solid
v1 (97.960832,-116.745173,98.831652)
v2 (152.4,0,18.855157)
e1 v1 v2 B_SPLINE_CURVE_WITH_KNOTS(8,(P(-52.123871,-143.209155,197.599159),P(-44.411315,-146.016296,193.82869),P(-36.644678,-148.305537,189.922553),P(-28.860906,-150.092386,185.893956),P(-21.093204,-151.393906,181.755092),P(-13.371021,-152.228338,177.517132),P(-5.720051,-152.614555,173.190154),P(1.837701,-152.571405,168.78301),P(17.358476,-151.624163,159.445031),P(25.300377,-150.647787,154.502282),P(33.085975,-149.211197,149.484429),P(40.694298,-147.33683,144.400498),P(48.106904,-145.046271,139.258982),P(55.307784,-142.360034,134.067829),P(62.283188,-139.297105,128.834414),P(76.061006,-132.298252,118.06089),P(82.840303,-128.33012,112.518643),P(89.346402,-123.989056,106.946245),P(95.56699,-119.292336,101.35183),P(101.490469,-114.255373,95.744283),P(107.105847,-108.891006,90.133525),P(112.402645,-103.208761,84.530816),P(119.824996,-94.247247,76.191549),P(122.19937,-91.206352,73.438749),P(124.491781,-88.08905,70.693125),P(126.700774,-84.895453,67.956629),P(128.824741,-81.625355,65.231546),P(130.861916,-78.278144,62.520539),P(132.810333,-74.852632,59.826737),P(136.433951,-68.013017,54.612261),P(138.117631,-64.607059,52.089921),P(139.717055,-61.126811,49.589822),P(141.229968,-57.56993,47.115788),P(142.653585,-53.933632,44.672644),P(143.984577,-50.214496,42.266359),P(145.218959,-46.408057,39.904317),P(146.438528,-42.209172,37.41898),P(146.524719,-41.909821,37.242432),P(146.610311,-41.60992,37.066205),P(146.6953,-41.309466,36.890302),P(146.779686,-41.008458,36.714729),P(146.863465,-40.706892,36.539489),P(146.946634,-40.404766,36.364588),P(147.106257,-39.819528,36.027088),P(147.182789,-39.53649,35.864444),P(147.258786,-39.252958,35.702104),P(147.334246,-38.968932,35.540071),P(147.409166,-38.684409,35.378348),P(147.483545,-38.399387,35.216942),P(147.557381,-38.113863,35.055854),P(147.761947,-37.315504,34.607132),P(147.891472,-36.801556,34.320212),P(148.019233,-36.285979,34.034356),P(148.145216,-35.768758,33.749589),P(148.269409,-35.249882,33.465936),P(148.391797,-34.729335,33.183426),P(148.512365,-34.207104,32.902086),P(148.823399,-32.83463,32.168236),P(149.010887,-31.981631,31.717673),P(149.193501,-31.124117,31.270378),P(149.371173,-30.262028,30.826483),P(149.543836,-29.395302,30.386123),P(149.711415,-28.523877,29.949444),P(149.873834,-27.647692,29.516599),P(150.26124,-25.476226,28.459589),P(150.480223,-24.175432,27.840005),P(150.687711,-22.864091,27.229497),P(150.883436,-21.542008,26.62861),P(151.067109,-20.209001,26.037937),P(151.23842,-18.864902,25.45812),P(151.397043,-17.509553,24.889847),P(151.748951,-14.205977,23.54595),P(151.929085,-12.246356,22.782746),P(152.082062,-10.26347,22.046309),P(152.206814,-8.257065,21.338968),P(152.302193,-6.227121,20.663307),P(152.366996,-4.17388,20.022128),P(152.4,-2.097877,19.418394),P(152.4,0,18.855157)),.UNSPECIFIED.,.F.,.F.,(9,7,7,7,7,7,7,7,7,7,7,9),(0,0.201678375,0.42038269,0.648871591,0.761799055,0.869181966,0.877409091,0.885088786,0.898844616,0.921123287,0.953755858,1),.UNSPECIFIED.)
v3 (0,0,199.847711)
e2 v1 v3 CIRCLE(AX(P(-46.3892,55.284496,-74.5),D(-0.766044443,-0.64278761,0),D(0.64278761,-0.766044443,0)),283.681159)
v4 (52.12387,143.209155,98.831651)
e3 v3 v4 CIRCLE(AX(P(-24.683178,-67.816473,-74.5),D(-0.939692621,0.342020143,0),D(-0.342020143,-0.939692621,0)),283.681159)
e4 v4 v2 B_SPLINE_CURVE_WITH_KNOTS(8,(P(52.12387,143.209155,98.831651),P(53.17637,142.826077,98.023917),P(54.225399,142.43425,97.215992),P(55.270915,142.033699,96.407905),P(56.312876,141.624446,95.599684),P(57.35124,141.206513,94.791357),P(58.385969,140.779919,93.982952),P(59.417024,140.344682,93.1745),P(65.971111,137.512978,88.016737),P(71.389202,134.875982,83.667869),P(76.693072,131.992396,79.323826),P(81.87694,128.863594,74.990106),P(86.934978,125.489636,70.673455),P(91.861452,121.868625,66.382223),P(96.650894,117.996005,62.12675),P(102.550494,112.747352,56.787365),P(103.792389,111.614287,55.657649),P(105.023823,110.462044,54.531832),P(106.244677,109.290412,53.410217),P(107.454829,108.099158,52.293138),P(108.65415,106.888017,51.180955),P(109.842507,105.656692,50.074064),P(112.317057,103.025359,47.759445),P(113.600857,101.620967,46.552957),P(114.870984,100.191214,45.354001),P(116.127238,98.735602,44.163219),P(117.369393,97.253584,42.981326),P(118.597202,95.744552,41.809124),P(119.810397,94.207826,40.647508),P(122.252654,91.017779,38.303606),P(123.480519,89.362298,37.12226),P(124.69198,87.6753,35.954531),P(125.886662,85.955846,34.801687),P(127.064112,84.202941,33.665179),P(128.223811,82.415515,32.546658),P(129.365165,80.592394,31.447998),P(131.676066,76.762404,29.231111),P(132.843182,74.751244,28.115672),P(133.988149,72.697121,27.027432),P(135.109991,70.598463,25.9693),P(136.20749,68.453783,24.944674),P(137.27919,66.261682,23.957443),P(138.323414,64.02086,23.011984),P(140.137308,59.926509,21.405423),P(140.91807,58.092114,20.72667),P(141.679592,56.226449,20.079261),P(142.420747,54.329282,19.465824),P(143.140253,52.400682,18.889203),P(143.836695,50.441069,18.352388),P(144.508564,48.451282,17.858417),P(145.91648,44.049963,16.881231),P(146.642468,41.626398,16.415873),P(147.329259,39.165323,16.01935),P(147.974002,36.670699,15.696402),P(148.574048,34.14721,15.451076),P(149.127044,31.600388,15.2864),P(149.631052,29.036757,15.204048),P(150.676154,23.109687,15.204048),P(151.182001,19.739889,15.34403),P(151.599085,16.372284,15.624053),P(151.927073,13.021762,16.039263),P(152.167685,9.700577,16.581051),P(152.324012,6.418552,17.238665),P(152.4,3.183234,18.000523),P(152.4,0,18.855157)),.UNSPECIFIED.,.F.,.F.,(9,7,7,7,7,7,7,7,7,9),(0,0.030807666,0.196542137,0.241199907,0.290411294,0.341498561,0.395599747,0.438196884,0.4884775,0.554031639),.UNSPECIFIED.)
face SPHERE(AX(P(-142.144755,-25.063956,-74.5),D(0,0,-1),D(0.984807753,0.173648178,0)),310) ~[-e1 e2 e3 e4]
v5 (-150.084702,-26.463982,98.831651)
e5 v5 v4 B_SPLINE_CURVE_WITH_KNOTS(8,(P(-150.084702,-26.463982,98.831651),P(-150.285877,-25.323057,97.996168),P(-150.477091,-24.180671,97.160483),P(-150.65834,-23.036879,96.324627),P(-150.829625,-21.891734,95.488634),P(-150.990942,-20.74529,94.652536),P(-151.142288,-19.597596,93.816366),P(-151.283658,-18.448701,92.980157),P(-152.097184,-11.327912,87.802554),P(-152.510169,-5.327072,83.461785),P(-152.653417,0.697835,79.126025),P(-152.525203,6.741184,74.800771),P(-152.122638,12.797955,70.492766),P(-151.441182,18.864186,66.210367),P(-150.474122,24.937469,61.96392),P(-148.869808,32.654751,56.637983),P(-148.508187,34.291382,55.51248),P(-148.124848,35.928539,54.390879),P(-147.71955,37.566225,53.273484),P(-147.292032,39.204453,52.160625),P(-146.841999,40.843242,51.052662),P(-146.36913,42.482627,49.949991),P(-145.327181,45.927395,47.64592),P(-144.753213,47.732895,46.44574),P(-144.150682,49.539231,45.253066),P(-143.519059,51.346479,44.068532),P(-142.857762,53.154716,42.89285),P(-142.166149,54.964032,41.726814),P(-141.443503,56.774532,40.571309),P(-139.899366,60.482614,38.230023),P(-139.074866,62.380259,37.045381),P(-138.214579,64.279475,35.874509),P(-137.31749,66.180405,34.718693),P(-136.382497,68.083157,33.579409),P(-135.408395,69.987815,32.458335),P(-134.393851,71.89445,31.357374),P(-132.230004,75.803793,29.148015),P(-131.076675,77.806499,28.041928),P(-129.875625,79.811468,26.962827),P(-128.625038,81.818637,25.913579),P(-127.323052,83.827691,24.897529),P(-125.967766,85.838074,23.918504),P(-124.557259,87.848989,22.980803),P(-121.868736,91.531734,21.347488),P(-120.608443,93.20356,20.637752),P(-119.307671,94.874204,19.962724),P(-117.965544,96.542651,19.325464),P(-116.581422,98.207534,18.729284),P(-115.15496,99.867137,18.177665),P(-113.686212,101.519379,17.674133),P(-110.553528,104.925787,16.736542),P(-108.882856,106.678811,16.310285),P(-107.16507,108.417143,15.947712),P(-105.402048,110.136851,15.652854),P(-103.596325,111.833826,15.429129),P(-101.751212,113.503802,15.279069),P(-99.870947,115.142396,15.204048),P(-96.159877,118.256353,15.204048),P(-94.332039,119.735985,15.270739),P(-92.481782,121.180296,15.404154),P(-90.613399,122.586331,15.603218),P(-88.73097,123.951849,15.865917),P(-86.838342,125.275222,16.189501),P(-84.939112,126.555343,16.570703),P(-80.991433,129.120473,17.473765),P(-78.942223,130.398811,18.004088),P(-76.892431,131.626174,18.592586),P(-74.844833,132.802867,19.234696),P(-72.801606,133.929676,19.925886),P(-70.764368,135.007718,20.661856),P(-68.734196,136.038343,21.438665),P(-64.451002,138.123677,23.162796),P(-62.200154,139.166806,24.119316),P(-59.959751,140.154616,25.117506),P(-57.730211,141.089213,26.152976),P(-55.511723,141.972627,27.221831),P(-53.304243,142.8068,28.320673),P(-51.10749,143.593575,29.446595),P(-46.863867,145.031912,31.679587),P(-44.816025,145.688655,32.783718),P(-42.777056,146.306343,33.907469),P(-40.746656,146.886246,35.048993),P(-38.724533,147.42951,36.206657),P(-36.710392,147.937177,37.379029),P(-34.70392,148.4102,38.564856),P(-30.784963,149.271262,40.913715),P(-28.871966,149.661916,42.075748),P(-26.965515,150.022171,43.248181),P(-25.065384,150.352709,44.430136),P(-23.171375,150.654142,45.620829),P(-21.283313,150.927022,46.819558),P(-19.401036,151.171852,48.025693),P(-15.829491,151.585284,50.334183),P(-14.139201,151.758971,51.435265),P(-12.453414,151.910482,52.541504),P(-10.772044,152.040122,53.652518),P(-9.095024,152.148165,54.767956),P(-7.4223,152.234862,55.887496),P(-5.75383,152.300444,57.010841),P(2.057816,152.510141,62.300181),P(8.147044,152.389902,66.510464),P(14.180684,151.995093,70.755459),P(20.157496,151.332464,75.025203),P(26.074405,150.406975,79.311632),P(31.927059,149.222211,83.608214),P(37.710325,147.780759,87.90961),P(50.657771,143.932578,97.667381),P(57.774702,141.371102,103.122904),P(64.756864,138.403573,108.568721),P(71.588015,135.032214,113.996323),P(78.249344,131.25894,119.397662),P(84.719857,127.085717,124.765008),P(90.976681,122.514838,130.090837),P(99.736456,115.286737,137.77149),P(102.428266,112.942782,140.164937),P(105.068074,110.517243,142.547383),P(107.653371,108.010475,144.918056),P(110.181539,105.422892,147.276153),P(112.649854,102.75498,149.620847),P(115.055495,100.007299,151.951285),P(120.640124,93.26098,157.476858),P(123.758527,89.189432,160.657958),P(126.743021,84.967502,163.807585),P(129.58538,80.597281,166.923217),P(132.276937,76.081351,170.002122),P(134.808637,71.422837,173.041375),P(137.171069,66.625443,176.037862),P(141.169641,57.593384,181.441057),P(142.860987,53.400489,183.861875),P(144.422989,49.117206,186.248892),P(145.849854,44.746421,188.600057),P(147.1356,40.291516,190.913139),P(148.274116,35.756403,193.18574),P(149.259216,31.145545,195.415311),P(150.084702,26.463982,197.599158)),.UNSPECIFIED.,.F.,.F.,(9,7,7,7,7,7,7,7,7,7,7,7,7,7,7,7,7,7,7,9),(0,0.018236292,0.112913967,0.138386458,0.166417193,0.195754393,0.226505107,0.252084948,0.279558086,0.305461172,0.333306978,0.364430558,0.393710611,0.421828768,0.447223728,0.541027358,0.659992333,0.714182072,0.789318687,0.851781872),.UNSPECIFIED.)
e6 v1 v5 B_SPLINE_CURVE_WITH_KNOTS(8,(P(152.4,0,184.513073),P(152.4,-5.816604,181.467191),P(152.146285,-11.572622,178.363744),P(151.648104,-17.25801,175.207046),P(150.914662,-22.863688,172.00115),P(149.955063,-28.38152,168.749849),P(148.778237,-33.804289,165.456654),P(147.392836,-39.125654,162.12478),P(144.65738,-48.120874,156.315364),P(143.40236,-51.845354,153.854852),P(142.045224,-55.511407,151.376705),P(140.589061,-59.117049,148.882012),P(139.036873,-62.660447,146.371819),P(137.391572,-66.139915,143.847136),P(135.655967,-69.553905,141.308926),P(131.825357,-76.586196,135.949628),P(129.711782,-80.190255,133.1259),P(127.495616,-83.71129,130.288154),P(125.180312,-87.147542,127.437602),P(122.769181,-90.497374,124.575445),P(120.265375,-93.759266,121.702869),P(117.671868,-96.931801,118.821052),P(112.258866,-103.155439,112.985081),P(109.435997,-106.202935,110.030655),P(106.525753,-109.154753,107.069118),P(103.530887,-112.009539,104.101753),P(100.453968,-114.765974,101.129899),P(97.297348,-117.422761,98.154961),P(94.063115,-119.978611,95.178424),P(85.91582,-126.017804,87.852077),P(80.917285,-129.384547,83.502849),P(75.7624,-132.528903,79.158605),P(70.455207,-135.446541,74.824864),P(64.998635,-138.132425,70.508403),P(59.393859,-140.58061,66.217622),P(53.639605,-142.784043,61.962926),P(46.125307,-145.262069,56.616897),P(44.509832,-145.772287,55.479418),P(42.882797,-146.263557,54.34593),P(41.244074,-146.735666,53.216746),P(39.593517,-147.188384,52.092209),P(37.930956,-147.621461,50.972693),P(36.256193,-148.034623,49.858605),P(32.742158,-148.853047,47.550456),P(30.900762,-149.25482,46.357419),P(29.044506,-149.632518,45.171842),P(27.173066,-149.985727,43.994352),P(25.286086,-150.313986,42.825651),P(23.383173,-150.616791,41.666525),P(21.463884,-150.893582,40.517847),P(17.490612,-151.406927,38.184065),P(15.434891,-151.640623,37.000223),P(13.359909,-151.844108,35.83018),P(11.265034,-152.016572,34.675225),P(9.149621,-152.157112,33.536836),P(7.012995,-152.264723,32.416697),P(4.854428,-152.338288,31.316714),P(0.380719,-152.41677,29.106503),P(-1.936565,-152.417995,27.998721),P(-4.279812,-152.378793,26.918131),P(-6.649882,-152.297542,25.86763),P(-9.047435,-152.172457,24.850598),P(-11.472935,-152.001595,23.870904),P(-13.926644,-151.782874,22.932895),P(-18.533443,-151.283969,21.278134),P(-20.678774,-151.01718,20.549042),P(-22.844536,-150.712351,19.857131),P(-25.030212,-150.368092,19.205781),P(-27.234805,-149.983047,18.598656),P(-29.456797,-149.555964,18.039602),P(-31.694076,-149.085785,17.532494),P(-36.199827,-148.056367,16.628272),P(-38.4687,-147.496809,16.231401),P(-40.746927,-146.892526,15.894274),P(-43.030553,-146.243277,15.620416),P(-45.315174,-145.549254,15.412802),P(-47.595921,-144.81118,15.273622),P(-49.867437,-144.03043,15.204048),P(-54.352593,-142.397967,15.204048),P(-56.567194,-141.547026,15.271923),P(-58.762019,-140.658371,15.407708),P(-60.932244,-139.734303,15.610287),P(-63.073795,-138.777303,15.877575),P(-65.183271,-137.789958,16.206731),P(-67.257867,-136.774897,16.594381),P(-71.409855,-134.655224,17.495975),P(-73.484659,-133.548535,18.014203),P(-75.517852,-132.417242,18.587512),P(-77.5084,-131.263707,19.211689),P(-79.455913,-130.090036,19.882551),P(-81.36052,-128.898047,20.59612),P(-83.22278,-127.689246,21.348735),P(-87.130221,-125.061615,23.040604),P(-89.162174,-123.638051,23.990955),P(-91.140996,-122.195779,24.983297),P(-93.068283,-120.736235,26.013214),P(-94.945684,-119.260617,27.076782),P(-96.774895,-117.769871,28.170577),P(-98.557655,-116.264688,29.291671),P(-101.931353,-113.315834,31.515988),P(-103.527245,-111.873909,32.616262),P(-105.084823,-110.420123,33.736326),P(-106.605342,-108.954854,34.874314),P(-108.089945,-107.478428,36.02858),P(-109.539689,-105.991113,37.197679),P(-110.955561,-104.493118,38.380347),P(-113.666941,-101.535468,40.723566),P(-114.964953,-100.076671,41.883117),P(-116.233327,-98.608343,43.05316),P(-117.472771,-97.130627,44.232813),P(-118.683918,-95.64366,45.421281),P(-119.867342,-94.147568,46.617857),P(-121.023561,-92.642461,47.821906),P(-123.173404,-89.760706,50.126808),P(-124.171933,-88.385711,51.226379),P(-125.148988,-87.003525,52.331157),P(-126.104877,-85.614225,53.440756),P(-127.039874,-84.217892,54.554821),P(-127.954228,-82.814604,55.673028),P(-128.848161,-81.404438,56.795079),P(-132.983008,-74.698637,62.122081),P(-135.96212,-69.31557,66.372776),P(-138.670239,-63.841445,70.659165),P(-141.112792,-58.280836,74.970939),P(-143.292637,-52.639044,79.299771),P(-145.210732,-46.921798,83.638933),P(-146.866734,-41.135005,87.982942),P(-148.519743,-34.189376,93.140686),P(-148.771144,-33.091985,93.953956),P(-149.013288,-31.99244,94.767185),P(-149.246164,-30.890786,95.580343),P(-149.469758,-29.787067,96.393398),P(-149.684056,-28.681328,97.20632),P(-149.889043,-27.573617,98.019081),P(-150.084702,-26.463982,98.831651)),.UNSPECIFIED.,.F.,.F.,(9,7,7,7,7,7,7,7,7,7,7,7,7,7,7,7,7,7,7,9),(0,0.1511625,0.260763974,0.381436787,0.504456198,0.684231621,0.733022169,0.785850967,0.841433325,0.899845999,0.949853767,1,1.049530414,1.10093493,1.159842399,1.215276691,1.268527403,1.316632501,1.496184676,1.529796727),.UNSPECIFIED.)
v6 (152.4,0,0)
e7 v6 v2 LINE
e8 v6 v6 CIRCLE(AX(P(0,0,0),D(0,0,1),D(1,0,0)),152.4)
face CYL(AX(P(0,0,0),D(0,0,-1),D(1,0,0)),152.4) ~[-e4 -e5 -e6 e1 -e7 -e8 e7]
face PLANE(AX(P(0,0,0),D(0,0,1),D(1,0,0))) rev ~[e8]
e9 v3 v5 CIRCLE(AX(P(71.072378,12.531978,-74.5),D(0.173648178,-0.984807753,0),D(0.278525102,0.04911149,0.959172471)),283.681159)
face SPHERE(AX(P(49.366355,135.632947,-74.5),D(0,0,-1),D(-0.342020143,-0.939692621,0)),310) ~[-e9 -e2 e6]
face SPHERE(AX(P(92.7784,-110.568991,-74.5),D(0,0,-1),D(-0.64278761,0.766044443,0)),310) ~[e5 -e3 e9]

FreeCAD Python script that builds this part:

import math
import FreeCAD as App
import Part
import Sketcher
from FreeCAD import Vector

doc = App.newDocument("Part")
body = doc.addObject("PartDesign::Body", "Body")

# Sketch on XY plane
sketch1 = doc.addObject("Sketcher::SketchObject", "Sketch")
body.addObject(sketch1)
sketch1.AttachmentSupport = (doc.XY_Plane, [""])
sketch1.MapMode = "FlatFace"
sketch1.addGeometry(Part.Circle(Vector(0, 0, 0), Vector(0, 0, 1), 152), False)
sketch1.addConstraint([
    Sketcher.Constraint("Coincident", 0, 3, -1, 1),
    Sketcher.Constraint("Diameter", 0, 304.8),
])
pad1 = doc.addObject("PartDesign::Pad", "Pad")
body.addObject(pad1)
pad1.Profile = sketch1
pad1.Length = 300

# Sketch on an angled plane
sketch2 = doc.addObject("Sketcher::SketchObject", "Sketch001")
body.addObject(sketch2)
sketch2.Placement = App.Placement(Vector(0, 0, -90.9), App.Rotation(Vector(-0.64278761, 0.766044443, 0), Vector(0, 0, 1), Vector(0.766044443, 0.64278761, 0), "ZXY"))
sketch2.addGeometry([
    Part.LineSegment(Vector(-144, -294, 0), Vector(-144, -594, 0)),
    Part.ArcOfCircle(Part.Circle(Vector(-144, 16, 0), Vector(0, 0, 1), 610), math.radians(-90), math.radians(90)),
    Part.LineSegment(Vector(-144, 626, 0), Vector(-144, 326, 0)),
    Part.ArcOfCircle(Part.Circle(Vector(-144, 16, 0), Vector(0, 0, 1), 310), math.radians(-90), math.radians(90)),
], False)
sketch2.addGeometry(Part.LineSegment(Vector(-144, -594, 0), Vector(-144, 626, 0)), True)  # axis
sketch2.addConstraint([
    Sketcher.Constraint("Coincident", 0, 2, 1, 1),
    Sketcher.Constraint("Coincident", 1, 2, 2, 1),
    Sketcher.Constraint("Coincident", 2, 2, 3, 2),
    Sketcher.Constraint("Coincident", 3, 1, 0, 1),
    Sketcher.Constraint("Vertical", 0),
    Sketcher.Constraint("Vertical", 2),
    Sketcher.Constraint("Vertical", 4),
    Sketcher.Constraint("Coincident", 3, 3, 1, 3),
    Sketcher.Constraint("Coincident", 4, 1, 0, 2),
    Sketcher.Constraint("Vertical", 3, 3, 0, 2),
    Sketcher.Constraint("Vertical", 2, 2, 3, 1),
    Sketcher.Constraint("Radius", 1, 610.0),
    Sketcher.Constraint("Radius", 3, 310.0),
    Sketcher.Constraint("DistanceY", 4, 1, 4, 2, 1220.000001),
    Sketcher.Constraint("DistanceY", -1, 1, 1, 3, 16.4),
    Sketcher.Constraint("DistanceX", 1, 3, -1, 1, 144.337567),
])
groove = doc.addObject("PartDesign::Groove", "Groove")
body.addObject(groove)
groove.Profile = sketch2
groove.ReferenceAxis = (sketch2, ["Axis0"])
groove.Angle = 360
doc.recompute()

polarpattern = doc.addObject("PartDesign::PolarPattern", "PolarPattern")
body.addObject(polarpattern)
polarpattern.Originals = [groove]
polarpattern.Axis = (doc.Z_Axis, [""])
polarpattern.Angle = 360
polarpattern.Occurrences = 3
body.Tip = polarpattern

doc.recompute()
